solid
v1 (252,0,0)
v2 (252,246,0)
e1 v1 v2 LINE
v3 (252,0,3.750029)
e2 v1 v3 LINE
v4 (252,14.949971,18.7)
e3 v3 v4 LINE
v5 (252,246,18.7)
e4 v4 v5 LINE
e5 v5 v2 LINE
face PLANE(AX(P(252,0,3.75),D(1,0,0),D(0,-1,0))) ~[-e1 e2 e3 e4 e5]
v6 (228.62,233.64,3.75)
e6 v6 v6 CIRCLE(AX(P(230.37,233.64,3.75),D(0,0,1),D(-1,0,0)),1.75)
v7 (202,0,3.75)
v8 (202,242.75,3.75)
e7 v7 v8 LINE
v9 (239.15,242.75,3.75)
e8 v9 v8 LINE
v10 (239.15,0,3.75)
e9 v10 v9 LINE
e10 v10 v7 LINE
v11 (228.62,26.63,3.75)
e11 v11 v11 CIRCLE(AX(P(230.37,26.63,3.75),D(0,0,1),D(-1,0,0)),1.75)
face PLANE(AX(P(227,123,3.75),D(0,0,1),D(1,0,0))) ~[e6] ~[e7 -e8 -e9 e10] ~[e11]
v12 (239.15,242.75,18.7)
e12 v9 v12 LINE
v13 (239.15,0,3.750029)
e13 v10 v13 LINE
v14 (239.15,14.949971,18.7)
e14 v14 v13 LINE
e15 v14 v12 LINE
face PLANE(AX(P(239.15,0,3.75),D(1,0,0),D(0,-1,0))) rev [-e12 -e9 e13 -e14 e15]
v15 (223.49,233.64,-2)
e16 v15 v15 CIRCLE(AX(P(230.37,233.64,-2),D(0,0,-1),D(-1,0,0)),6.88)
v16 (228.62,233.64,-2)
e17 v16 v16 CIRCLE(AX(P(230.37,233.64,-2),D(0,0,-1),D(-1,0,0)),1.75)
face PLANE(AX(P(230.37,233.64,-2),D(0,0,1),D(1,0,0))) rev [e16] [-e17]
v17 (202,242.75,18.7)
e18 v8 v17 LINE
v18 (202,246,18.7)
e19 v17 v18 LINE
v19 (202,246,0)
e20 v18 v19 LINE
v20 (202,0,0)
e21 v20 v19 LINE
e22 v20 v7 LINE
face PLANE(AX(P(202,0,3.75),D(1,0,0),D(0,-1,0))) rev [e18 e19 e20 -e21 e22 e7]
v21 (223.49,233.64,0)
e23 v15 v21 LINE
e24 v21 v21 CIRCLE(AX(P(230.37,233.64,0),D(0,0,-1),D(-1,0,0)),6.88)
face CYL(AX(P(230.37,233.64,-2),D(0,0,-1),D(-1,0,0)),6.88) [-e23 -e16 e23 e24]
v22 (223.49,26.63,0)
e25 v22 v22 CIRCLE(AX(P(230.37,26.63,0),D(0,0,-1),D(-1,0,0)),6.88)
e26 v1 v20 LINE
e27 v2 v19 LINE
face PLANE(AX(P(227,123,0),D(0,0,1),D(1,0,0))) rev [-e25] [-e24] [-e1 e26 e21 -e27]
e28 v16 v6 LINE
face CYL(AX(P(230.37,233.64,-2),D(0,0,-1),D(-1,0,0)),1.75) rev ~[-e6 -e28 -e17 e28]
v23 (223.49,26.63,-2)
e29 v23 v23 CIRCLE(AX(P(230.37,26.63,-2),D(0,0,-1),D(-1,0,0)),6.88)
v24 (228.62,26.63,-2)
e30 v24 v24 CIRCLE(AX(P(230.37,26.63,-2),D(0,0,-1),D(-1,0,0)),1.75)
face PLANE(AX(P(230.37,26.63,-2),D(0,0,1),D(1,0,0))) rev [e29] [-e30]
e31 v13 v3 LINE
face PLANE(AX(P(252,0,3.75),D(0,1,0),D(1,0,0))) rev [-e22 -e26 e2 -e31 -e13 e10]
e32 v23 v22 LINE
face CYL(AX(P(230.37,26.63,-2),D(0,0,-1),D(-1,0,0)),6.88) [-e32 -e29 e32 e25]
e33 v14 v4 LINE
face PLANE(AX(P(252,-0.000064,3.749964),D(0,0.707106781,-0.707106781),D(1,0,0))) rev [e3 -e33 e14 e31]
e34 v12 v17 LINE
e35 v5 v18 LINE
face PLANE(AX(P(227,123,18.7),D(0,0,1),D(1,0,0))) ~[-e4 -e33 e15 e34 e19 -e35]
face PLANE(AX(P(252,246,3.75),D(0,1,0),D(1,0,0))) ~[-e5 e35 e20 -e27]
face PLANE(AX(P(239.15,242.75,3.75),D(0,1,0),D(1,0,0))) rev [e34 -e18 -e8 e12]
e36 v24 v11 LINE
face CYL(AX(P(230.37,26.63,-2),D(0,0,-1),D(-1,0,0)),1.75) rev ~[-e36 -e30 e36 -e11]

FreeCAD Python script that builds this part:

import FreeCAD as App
import Part
import Sketcher
from FreeCAD import Vector

doc = App.newDocument("Part")
params = doc.addObject("Spreadsheet::Sheet", "Params")
for row, (alias, value) in enumerate([
    ("sketch1_diameter", "3.5 mm"),
    ("pad1_length", "6 mm"),
    ("sketch2_diameter", "13.76 mm"),
    ("pad2_length", "2 mm"),
    ("sketch3_diameter", "3.5 mm"),
    ("pad3_length", "6 mm"),
    ("sketch4_width", "20 mm"),
    ("pad4_length", "28 mm"),
    ("sketch5_width", "37.15 mm"),
    ("sketch5_height", "242.75 mm"),
    ("pad5_length", "14.95 mm"),
    ("sketch6_width", "50 mm"),
    ("sketch6_height", "246 mm"),
    ("pad6_length", "14.95 mm"),
    ("sketch7_width", "50 mm"),
    ("sketch7_height", "246 mm"),
    ("pad7_length", "3.75 mm"),
    ("sketch8_diameter", "13.76 mm"),
    ("pad8_length", "2 mm"),
], start=1):
    params.set(f"A{row}", alias)
    params.set(f"B{row}", "=" + value)
    params.setAlias(f"B{row}", alias)

body = doc.addObject("PartDesign::Body", "Body")

# Sketch on XY plane
sketch1 = body.newObject("Sketcher::SketchObject", "Sketch")
sketch1.AttachmentSupport = (doc.getObject("XY_Plane"), [""])
sketch1.MapMode = "FlatFace"
sketch1.AttachmentOffset = App.Placement(Vector(0, 0, -2), App.Rotation())
sketch1.addGeometry(Part.Circle(Vector(21.63, 233.64, 0), Vector(0, 0, 1), 1.75), False)
sketch1.addConstraint(Sketcher.Constraint("Diameter", 0, 3.5))
sketch1.addConstraint(Sketcher.Constraint("DistanceX", -1, 1, 0, 3, 21.63))
sketch1.addConstraint(Sketcher.Constraint("DistanceY", -1, 1, 0, 3, 233.64))
sketch1.setExpression("Constraints[0]", "Params.sketch1_diameter")
pad1 = body.newObject("PartDesign::Pad", "Pad")
pad1.Profile = sketch1
pad1.setExpression("Length", "Params.pad1_length")
body2 = doc.addObject("PartDesign::Body", "Body001")

# Sketch on XY plane
sketch2 = body2.newObject("Sketcher::SketchObject", "Sketch001")
sketch2.AttachmentSupport = (doc.getObject("XY_Plane001"), [""])
sketch2.MapMode = "FlatFace"
sketch2.AttachmentOffset = App.Placement(Vector(0, 0, -2), App.Rotation())
sketch2.addGeometry(Part.Circle(Vector(21.63, 233.64, 0), Vector(0, 0, 1), 6.88), False)
sketch2.addConstraint(Sketcher.Constraint("Diameter", 0, 13.76))
sketch2.addConstraint(Sketcher.Constraint("DistanceX", -1, 1, 0, 3, 21.63))
sketch2.addConstraint(Sketcher.Constraint("DistanceY", -1, 1, 0, 3, 233.64))
sketch2.setExpression("Constraints[0]", "Params.sketch2_diameter")
pad2 = body2.newObject("PartDesign::Pad", "Pad001")
pad2.Profile = sketch2
pad2.setExpression("Length", "Params.pad2_length")
body3 = doc.addObject("PartDesign::Body", "Body002")

# Sketch on XY plane
sketch3 = body3.newObject("Sketcher::SketchObject", "Sketch002")
sketch3.AttachmentSupport = (doc.getObject("XY_Plane002"), [""])
sketch3.MapMode = "FlatFace"
sketch3.AttachmentOffset = App.Placement(Vector(0, 0, -2), App.Rotation())
sketch3.addGeometry(Part.Circle(Vector(21.63, 26.63, 0), Vector(0, 0, 1), 1.75), False)
sketch3.addConstraint(Sketcher.Constraint("Diameter", 0, 3.5))
sketch3.addConstraint(Sketcher.Constraint("DistanceX", -1, 1, 0, 3, 21.63))
sketch3.addConstraint(Sketcher.Constraint("DistanceY", -1, 1, 0, 3, 26.63))
sketch3.setExpression("Constraints[0]", "Params.sketch3_diameter")
pad3 = body3.newObject("PartDesign::Pad", "Pad002")
pad3.Profile = sketch3
pad3.setExpression("Length", "Params.pad3_length")
body4 = doc.addObject("PartDesign::Body", "Body003")

# Sketch on XY plane
sketch4 = body4.newObject("Sketcher::SketchObject", "Sketch003")
sketch4.AttachmentSupport = (doc.getObject("XY_Plane003"), [""])
sketch4.MapMode = "FlatFace"
sketch4.addGeometry(Part.LineSegment(Vector(0, 20, 0), Vector(0, 0, 0)), False)
sketch4.addGeometry(Part.LineSegment(Vector(0, 0, 0), Vector(20, 0, 0)), False)
sketch4.addGeometry(Part.LineSegment(Vector(20, 0, 0), Vector(20, 20, 0)), False)
sketch4.addGeometry(Part.LineSegment(Vector(20, 20, 0), Vector(0, 20, 0)), False)
sketch4.addConstraint(Sketcher.Constraint("Coincident", 0, 2, 1, 1))
sketch4.addConstraint(Sketcher.Constraint("Coincident", 1, 2, 2, 1))
sketch4.addConstraint(Sketcher.Constraint("Coincident", 2, 2, 3, 1))
sketch4.addConstraint(Sketcher.Constraint("Coincident", 3, 2, 0, 1))
sketch4.addConstraint(Sketcher.Constraint("Vertical", 0))
sketch4.addConstraint(Sketcher.Constraint("Horizontal", 1))
sketch4.addConstraint(Sketcher.Constraint("Vertical", 2))
sketch4.addConstraint(Sketcher.Constraint("Horizontal", 3))
sketch4.addConstraint(Sketcher.Constraint("Coincident", 0, 2, -1, 1))
sketch4.addConstraint(Sketcher.Constraint("Equal", 3, 0))
sketch4.addConstraint(Sketcher.Constraint("DistanceX", 1, 1, 1, 2, 20.0))
sketch4.setExpression("Constraints[10]", "Params.sketch4_width")
pad4 = body4.newObject("PartDesign::Pad", "Pad003")
pad4.Profile = sketch4
pad4.setExpression("Length", "Params.pad4_length")
body5 = doc.addObject("PartDesign::Body", "Body004")
doc.recompute()

body4.Placement = App.Placement(Vector(0, -14.1422, 17.8921), App.Rotation(Vector(-1, 0, 0), 45))
boolean = body5.newObject("PartDesign::Boolean", "Boolean")
boolean.Type = "Fuse"
boolean.addObjects([body4])
body6 = doc.addObject("PartDesign::Body", "Body005")

# Sketch on XY plane
sketch5 = body6.newObject("Sketcher::SketchObject", "Sketch004")
sketch5.AttachmentSupport = (doc.getObject("XY_Plane005"), [""])
sketch5.MapMode = "FlatFace"
sketch5.AttachmentOffset = App.Placement(Vector(0, 0, 3.75), App.Rotation())
sketch5.addGeometry(Part.LineSegment(Vector(12.85, 242.75, 0), Vector(12.85, 0, 0)), False)
sketch5.addGeometry(Part.LineSegment(Vector(12.85, 0, 0), Vector(50, 0, 0)), False)
sketch5.addGeometry(Part.LineSegment(Vector(50, 0, 0), Vector(50, 242.75, 0)), False)
sketch5.addGeometry(Part.LineSegment(Vector(50, 242.75, 0), Vector(12.85, 242.75, 0)), False)
sketch5.addConstraint(Sketcher.Constraint("Coincident", 0, 2, 1, 1))
sketch5.addConstraint(Sketcher.Constraint("Coincident", 1, 2, 2, 1))
sketch5.addConstraint(Sketcher.Constraint("Coincident", 2, 2, 3, 1))
sketch5.addConstraint(Sketcher.Constraint("Coincident", 3, 2, 0, 1))
sketch5.addConstraint(Sketcher.Constraint("Vertical", 0))
sketch5.addConstraint(Sketcher.Constraint("Horizontal", 1))
sketch5.addConstraint(Sketcher.Constraint("Vertical", 2))
sketch5.addConstraint(Sketcher.Constraint("Horizontal", 3))
sketch5.addConstraint(Sketcher.Constraint("PointOnObject", 0, 2, -1))
sketch5.addConstraint(Sketcher.Constraint("DistanceX", -1, 1, 1, 2, 50.0))
sketch5.addConstraint(Sketcher.Constraint("DistanceX", 1, 1, 1, 2, 37.15))
sketch5.addConstraint(Sketcher.Constraint("DistanceY", 0, 2, 0, 1, 242.75))
sketch5.setExpression("Constraints[10]", "Params.sketch5_width")
sketch5.setExpression("Constraints[11]", "Params.sketch5_height")
pad5 = body6.newObject("PartDesign::Pad", "Pad004")
pad5.Profile = sketch5
pad5.setExpression("Length", "Params.pad5_length")
body7 = doc.addObject("PartDesign::Body", "Body006")

# Sketch on XY plane
sketch6 = body7.newObject("Sketcher::SketchObject", "Sketch005")
sketch6.AttachmentSupport = (doc.getObject("XY_Plane006"), [""])
sketch6.MapMode = "FlatFace"
sketch6.AttachmentOffset = App.Placement(Vector(0, 0, 3.75), App.Rotation())
sketch6.addGeometry(Part.LineSegment(Vector(0, 246, 0), Vector(0, 0, 0)), False)
sketch6.addGeometry(Part.LineSegment(Vector(0, 0, 0), Vector(50, 0, 0)), False)
sketch6.addGeometry(Part.LineSegment(Vector(50, 0, 0), Vector(50, 246, 0)), False)
sketch6.addGeometry(Part.LineSegment(Vector(50, 246, 0), Vector(0, 246, 0)), False)
sketch6.addConstraint(Sketcher.Constraint("Coincident", 0, 2, 1, 1))
sketch6.addConstraint(Sketcher.Constraint("Coincident", 1, 2, 2, 1))
sketch6.addConstraint(Sketcher.Constraint("Coincident", 2, 2, 3, 1))
sketch6.addConstraint(Sketcher.Constraint("Coincident", 3, 2, 0, 1))
sketch6.addConstraint(Sketcher.Constraint("Vertical", 0))
sketch6.addConstraint(Sketcher.Constraint("Horizontal", 1))
sketch6.addConstraint(Sketcher.Constraint("Vertical", 2))
sketch6.addConstraint(Sketcher.Constraint("Horizontal", 3))
sketch6.addConstraint(Sketcher.Constraint("Coincident", 0, 2, -1, 1))
sketch6.addConstraint(Sketcher.Constraint("DistanceX", 1, 1, 1, 2, 50.0))
sketch6.addConstraint(Sketcher.Constraint("DistanceY", 0, 2, 0, 1, 246.0))
sketch6.setExpression("Constraints[9]", "Params.sketch6_width")
sketch6.setExpression("Constraints[10]", "Params.sketch6_height")
pad6 = body7.newObject("PartDesign::Pad", "Pad005")
pad6.Profile = sketch6
pad6.setExpression("Length", "Params.pad6_length")
doc.recompute()

boolean2 = body7.newObject("PartDesign::Boolean", "Boolean001")
boolean2.Type = "Cut"
boolean2.addObjects([body6])
doc.recompute()

boolean3 = body7.newObject("PartDesign::Boolean", "Boolean002")
boolean3.Type = "Cut"
boolean3.addObjects([body5])
body8 = doc.addObject("PartDesign::Body", "Body007")

# Sketch on XY plane
sketch7 = body8.newObject("Sketcher::SketchObject", "Sketch006")
sketch7.AttachmentSupport = (doc.getObject("XY_Plane007"), [""])
sketch7.MapMode = "FlatFace"
sketch7.addGeometry(Part.LineSegment(Vector(0, 246, 0), Vector(0, 0, 0)), False)
sketch7.addGeometry(Part.LineSegment(Vector(0, 0, 0), Vector(50, 0, 0)), False)
sketch7.addGeometry(Part.LineSegment(Vector(50, 0, 0), Vector(50, 246, 0)), False)
sketch7.addGeometry(Part.LineSegment(Vector(50, 246, 0), Vector(0, 246, 0)), False)
sketch7.addConstraint(Sketcher.Constraint("Coincident", 0, 2, 1, 1))
sketch7.addConstraint(Sketcher.Constraint("Coincident", 1, 2, 2, 1))
sketch7.addConstraint(Sketcher.Constraint("Coincident", 2, 2, 3, 1))
sketch7.addConstraint(Sketcher.Constraint("Coincident", 3, 2, 0, 1))
sketch7.addConstraint(Sketcher.Constraint("Vertical", 0))
sketch7.addConstraint(Sketcher.Constraint("Horizontal", 1))
sketch7.addConstraint(Sketcher.Constraint("Vertical", 2))
sketch7.addConstraint(Sketcher.Constraint("Horizontal", 3))
sketch7.addConstraint(Sketcher.Constraint("Coincident", 0, 2, -1, 1))
sketch7.addConstraint(Sketcher.Constraint("DistanceX", 1, 1, 1, 2, 50.0))
sketch7.addConstraint(Sketcher.Constraint("DistanceY", 0, 2, 0, 1, 246.0))
sketch7.setExpression("Constraints[9]", "Params.sketch7_width")
sketch7.setExpression("Constraints[10]", "Params.sketch7_height")
pad7 = body8.newObject("PartDesign::Pad", "Pad006")
pad7.Profile = sketch7
pad7.setExpression("Length", "Params.pad7_length")
doc.recompute()

boolean4 = body8.newObject("PartDesign::Boolean", "Boolean003")
boolean4.Type = "Fuse"
boolean4.addObjects([body7])
body9 = doc.addObject("PartDesign::Body", "Body008")

# Sketch on XY plane
sketch8 = body9.newObject("Sketcher::SketchObject", "Sketch007")
sketch8.AttachmentSupport = (doc.getObject("XY_Plane008"), [""])
sketch8.MapMode = "FlatFace"
sketch8.AttachmentOffset = App.Placement(Vector(0, 0, -2), App.Rotation())
sketch8.addGeometry(Part.Circle(Vector(21.63, 26.63, 0), Vector(0, 0, 1), 6.88), False)
sketch8.addConstraint(Sketcher.Constraint("Diameter", 0, 13.76))
sketch8.addConstraint(Sketcher.Constraint("DistanceX", -1, 1, 0, 3, 21.63))
sketch8.addConstraint(Sketcher.Constraint("DistanceY", -1, 1, 0, 3, 26.63))
sketch8.setExpression("Constraints[0]", "Params.sketch8_diameter")
pad8 = body9.newObject("PartDesign::Pad", "Pad007")
pad8.Profile = sketch8
pad8.setExpression("Length", "Params.pad8_length")
doc.recompute()

boolean5 = body9.newObject("PartDesign::Boolean", "Boolean004")
boolean5.Type = "Fuse"
boolean5.addObjects([body8])
doc.recompute()

boolean6 = body9.newObject("PartDesign::Boolean", "Boolean005")
boolean6.Type = "Cut"
boolean6.addObjects([body3])
doc.recompute()

boolean7 = body9.newObject("PartDesign::Boolean", "Boolean006")
boolean7.Type = "Fuse"
boolean7.addObjects([body2])
doc.recompute()

boolean8 = body9.newObject("PartDesign::Boolean", "Boolean007")
boolean8.Type = "Cut"
boolean8.addObjects([body])
body10 = doc.addObject("PartDesign::Body", "Body009")
doc.recompute()

mirroring = doc.addObject("Part::Mirroring", "Mirroring")
mirroring.Source = body9
mirroring.Base = Vector(126, 0, 0)
mirroring.Normal = Vector(1, 0, 0)
body10.BaseFeature = mirroring
doc.recompute()
body9.Visibility = False
mirroring.Visibility = False

doc.recompute()
